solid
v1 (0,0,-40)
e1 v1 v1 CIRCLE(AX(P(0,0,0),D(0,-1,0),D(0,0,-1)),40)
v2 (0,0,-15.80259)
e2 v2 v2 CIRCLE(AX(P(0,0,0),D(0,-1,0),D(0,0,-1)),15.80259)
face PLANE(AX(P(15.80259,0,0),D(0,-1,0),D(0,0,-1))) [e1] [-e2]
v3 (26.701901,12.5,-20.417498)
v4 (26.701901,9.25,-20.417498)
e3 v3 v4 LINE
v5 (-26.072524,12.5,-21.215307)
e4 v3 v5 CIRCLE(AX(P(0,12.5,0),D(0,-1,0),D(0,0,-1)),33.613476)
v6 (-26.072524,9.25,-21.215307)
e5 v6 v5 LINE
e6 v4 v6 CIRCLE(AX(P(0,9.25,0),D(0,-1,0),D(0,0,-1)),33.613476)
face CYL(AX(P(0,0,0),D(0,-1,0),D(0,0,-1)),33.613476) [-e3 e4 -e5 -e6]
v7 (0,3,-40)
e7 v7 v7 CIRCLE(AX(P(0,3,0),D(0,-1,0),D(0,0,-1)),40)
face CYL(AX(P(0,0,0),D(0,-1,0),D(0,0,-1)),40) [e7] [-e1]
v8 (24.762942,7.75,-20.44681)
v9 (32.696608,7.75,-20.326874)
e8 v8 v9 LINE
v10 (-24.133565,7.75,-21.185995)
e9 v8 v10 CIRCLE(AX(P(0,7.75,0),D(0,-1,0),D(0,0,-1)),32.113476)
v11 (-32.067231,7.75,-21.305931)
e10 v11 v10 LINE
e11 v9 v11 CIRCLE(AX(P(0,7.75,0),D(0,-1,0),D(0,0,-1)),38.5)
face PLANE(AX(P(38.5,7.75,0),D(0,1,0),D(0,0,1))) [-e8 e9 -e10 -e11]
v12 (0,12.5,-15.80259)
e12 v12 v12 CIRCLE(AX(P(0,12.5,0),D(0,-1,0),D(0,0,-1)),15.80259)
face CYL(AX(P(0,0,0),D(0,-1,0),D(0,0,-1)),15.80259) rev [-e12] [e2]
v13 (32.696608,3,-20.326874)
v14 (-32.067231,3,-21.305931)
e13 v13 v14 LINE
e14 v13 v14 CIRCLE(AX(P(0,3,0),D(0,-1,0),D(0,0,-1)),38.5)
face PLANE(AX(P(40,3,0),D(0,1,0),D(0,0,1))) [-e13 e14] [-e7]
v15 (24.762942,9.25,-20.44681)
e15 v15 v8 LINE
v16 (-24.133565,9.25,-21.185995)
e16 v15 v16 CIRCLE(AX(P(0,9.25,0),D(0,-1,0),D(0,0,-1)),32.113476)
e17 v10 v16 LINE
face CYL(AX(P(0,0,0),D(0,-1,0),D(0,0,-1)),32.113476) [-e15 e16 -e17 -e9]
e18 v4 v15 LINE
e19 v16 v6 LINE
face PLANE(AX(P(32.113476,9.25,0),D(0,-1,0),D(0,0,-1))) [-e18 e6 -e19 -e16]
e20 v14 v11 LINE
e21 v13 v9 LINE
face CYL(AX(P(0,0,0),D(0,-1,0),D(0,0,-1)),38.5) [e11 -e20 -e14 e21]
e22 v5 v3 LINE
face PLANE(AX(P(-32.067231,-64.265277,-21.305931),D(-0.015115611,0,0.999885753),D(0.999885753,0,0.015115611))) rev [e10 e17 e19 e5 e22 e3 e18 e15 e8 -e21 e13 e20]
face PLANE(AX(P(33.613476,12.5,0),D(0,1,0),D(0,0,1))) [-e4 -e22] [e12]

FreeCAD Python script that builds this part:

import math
import FreeCAD as App
import Part
import Sketcher
from FreeCAD import Vector


def add_polygon(sketch, points):
    """Adds a closed chain of lines whose ends are joined by coincident constraints."""
    first, n = sketch.GeometryCount, len(points)
    for a, b in zip(points, points[1:] + points[:1]):
        sketch.addGeometry(Part.LineSegment(App.Vector(*a, 0), App.Vector(*b, 0)), False)
    for i in range(n):
        sketch.addConstraint(Sketcher.Constraint("Coincident", first + i, 2, first + (i + 1) % n, 1))

doc = App.newDocument("Part")
params = doc.addObject("Spreadsheet::Sheet", "Params")
for row, (alias, value) in enumerate([
    ("sketch1_height", "3 mm"),
    ("sketch1_width", "1.5 mm"),
    ("sketch1_height2", "12.5 mm"),
    ("sketch1_height3", "4.75 mm"),
    ("revolution_angle", "360 deg"),
    ("sketch2_radius", "38.5 mm"),
    ("pocket1_length", "9.5 mm"),
], start=1):
    params.set(f"A{row}", alias)
    params.set(f"B{row}", "=" + value)
    params.setAlias(f"B{row}", alias)

body = doc.addObject("PartDesign::Body", "Body")

sketch1 = body.newObject("Sketcher::SketchObject", "Sketch")
sketch1.AttachmentSupport = (doc.getObject("XY_Plane"), [""])
sketch1.MapMode = "FlatFace"
add_polygon(sketch1, [(15.8, 0), (40, 0), (40, 3), (38.5, 3), (38.5, 7.8), (32.1, 7.8), (32.1, 9.2), (33.6, 9.2), (33.6, 12.5), (15.8, 12.5)])
sketch1.addConstraint(Sketcher.Constraint("Horizontal", 0))
sketch1.addConstraint(Sketcher.Constraint("Vertical", 1))
sketch1.addConstraint(Sketcher.Constraint("Horizontal", 2))
sketch1.addConstraint(Sketcher.Constraint("Vertical", 3))
sketch1.addConstraint(Sketcher.Constraint("Horizontal", 4))
sketch1.addConstraint(Sketcher.Constraint("Vertical", 5))
sketch1.addConstraint(Sketcher.Constraint("Horizontal", 6))
sketch1.addConstraint(Sketcher.Constraint("Vertical", 7))
sketch1.addConstraint(Sketcher.Constraint("Horizontal", 8))
sketch1.addConstraint(Sketcher.Constraint("Vertical", 9))
sketch1.addConstraint(Sketcher.Constraint("PointOnObject", 0, 2, -1))
sketch1.addConstraint(Sketcher.Constraint("Equal", 2, 6))
sketch1.addConstraint(Sketcher.Constraint("Equal", 6, 5))
sketch1.addConstraint(Sketcher.Constraint("DistanceY", 1, 1, 1, 2, 3.0))
sketch1.addConstraint(Sketcher.Constraint("DistanceX", 2, 2, 2, 1, 1.5))
sketch1.addConstraint(Sketcher.Constraint("DistanceY", 9, 2, 9, 1, 12.5))
sketch1.addConstraint(Sketcher.Constraint("DistanceX", -1, 1, 0, 2, 40.0))
sketch1.addConstraint(Sketcher.Constraint("DistanceY", 3, 1, 3, 2, 4.75))
sketch1.addConstraint(Sketcher.Constraint("DistanceX", 0, 1, 0, 2, 24.19741))
sketch1.addConstraint(Sketcher.Constraint("DistanceX", 4, 2, 4, 1, 6.386524))
sketch1.setExpression("Constraints[23]", "Params.sketch1_height")
sketch1.setExpression("Constraints[24]", "Params.sketch1_width")
sketch1.setExpression("Constraints[25]", "Params.sketch1_height2")
sketch1.setExpression("Constraints[27]", "Params.sketch1_height3")
revolution = body.newObject("PartDesign::Revolution", "Revolution")
revolution.Profile = sketch1
revolution.ReferenceAxis = (sketch1, ["V_Axis"])
revolution.setExpression("Angle", "Params.revolution_angle")

sketch2 = body.newObject("Sketcher::SketchObject", "Sketch001")
sketch2.AttachmentSupport = (doc.getObject("XZ_Plane"), [""])
sketch2.MapMode = "FlatFace"
sketch2.AttachmentOffset = App.Placement(Vector(0, 0, -12.5), App.Rotation())
sketch2.addGeometry(Part.LineSegment(Vector(-32, -21, 0), Vector(33, -20, 0)), False)
sketch2.addGeometry(Part.ArcOfCircle(Part.Circle(Vector(0, 0, 0), Vector(0, 0, 1), 38), math.radians(-146), math.radians(-32)), False)
sketch2.addConstraint(Sketcher.Constraint("Coincident", 0, 1, 1, 1))
sketch2.addConstraint(Sketcher.Constraint("Coincident", 1, 2, 0, 2))
sketch2.addConstraint(Sketcher.Constraint("Coincident", 1, 3, -1, 1))
sketch2.addConstraint(Sketcher.Constraint("Radius", 1, 38.5))
sketch2.addConstraint(Sketcher.Constraint("Distance", 0, 64.77124))
sketch2.addConstraint(Sketcher.Constraint("DistanceX", 0, 1, -1, 1, 32.067231))
sketch2.setExpression("Constraints[3]", "Params.sketch2_radius")
pocket1 = body.newObject("PartDesign::Pocket", "Pocket")
pocket1.Profile = sketch2
pocket1.setExpression("Length", "Params.pocket1_length")
pocket1.Reversed = True

doc.recompute()
